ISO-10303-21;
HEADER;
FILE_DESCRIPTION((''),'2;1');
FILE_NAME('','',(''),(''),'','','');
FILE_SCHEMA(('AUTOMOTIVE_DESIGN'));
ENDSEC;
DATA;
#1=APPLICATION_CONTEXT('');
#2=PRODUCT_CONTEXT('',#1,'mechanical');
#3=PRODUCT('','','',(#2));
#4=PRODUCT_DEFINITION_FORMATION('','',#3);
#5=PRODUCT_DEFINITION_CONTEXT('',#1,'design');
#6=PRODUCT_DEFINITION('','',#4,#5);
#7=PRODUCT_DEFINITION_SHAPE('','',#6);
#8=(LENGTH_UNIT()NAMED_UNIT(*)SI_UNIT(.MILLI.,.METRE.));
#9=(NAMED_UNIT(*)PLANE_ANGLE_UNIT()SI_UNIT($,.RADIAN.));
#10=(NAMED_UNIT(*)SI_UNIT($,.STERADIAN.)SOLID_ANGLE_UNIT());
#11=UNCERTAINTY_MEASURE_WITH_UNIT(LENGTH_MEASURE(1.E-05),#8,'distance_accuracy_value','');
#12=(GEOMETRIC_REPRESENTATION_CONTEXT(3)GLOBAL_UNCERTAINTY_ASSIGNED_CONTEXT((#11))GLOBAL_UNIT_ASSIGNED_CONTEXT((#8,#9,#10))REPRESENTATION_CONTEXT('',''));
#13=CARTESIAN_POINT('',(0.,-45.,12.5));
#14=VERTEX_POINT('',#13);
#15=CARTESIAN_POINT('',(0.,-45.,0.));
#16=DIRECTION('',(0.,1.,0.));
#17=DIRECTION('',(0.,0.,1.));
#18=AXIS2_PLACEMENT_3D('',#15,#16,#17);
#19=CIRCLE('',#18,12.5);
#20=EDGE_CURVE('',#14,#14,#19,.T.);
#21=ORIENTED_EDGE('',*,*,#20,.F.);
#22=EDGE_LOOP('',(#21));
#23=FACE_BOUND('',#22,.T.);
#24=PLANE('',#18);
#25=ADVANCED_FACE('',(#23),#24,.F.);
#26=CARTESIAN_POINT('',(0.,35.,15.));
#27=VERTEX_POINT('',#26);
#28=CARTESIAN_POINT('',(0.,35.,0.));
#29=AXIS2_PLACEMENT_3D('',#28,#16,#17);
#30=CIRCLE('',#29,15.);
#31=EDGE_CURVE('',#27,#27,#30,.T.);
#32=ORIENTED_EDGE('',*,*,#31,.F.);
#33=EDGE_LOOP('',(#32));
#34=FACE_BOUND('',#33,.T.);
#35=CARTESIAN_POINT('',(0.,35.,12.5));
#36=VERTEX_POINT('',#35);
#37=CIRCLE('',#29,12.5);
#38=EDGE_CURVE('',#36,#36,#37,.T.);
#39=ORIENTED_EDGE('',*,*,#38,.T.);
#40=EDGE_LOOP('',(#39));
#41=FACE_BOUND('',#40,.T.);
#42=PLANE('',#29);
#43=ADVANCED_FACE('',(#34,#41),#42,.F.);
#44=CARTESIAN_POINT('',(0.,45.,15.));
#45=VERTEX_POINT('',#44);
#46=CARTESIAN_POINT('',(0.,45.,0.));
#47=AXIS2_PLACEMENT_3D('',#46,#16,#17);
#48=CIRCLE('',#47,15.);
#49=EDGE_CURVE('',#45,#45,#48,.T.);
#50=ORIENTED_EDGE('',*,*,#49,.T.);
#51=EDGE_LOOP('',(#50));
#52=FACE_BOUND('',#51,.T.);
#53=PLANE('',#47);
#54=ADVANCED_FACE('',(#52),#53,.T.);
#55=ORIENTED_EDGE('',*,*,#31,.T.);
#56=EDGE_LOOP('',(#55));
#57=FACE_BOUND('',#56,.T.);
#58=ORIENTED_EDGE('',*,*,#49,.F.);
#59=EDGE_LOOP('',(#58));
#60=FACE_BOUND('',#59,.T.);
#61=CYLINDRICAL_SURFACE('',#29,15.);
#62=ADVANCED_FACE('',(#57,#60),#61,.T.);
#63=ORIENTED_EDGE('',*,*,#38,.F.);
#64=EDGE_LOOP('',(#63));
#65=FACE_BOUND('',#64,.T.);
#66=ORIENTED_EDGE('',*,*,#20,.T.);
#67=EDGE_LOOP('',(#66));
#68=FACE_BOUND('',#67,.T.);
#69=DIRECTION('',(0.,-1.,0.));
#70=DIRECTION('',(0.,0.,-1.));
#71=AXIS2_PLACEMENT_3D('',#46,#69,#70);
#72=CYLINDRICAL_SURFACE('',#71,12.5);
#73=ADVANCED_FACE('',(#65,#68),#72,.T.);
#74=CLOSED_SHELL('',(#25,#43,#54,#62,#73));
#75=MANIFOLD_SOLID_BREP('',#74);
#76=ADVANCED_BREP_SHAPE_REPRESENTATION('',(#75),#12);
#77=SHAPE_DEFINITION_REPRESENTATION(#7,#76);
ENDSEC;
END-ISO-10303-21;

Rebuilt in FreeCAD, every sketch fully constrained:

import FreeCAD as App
import Part
import Sketcher

V = App.Vector

doc = App.newDocument("Part")
body = doc.addObject("PartDesign::Body", "Body")

# Sketch on XZ plane
sketch1 = body.newObject("Sketcher::SketchObject", "Sketch")
sketch1.AttachmentSupport = (doc.getObject("XZ_Plane"), [""])
sketch1.MapMode = "FlatFace"
sketch1.addGeometry(Part.Circle(V(0, 0, 0), V(0, 0, 1), 12), False)
sketch1.addConstraint(Sketcher.Constraint("Coincident", 0, 3, -1, 1))
sketch1.addConstraint(Sketcher.Constraint("Diameter", 0, 25.0))
pad1 = body.newObject("PartDesign::Pad", "Pad")
pad1.Profile = sketch1
pad1.Length = 90
pad1.Midplane = True

# Sketch on XZ plane
sketch2 = body.newObject("Sketcher::SketchObject", "Sketch001")
sketch2.AttachmentSupport = (doc.getObject("XZ_Plane"), [""])
sketch2.MapMode = "FlatFace"
sketch2.AttachmentOffset = App.Placement(V(0, 0, -45), App.Rotation())
sketch2.addGeometry(Part.Circle(V(0, 0, 0), V(0, 0, 1), 15), False)
sketch2.addConstraint(Sketcher.Constraint("Coincident", 0, 3, -1, 1))
sketch2.addConstraint(Sketcher.Constraint("Diameter", 0, 30.0))
pad2 = body.newObject("PartDesign::Pad", "Pad001")
pad2.Profile = sketch2
pad2.Length = 10

doc.recompute()
